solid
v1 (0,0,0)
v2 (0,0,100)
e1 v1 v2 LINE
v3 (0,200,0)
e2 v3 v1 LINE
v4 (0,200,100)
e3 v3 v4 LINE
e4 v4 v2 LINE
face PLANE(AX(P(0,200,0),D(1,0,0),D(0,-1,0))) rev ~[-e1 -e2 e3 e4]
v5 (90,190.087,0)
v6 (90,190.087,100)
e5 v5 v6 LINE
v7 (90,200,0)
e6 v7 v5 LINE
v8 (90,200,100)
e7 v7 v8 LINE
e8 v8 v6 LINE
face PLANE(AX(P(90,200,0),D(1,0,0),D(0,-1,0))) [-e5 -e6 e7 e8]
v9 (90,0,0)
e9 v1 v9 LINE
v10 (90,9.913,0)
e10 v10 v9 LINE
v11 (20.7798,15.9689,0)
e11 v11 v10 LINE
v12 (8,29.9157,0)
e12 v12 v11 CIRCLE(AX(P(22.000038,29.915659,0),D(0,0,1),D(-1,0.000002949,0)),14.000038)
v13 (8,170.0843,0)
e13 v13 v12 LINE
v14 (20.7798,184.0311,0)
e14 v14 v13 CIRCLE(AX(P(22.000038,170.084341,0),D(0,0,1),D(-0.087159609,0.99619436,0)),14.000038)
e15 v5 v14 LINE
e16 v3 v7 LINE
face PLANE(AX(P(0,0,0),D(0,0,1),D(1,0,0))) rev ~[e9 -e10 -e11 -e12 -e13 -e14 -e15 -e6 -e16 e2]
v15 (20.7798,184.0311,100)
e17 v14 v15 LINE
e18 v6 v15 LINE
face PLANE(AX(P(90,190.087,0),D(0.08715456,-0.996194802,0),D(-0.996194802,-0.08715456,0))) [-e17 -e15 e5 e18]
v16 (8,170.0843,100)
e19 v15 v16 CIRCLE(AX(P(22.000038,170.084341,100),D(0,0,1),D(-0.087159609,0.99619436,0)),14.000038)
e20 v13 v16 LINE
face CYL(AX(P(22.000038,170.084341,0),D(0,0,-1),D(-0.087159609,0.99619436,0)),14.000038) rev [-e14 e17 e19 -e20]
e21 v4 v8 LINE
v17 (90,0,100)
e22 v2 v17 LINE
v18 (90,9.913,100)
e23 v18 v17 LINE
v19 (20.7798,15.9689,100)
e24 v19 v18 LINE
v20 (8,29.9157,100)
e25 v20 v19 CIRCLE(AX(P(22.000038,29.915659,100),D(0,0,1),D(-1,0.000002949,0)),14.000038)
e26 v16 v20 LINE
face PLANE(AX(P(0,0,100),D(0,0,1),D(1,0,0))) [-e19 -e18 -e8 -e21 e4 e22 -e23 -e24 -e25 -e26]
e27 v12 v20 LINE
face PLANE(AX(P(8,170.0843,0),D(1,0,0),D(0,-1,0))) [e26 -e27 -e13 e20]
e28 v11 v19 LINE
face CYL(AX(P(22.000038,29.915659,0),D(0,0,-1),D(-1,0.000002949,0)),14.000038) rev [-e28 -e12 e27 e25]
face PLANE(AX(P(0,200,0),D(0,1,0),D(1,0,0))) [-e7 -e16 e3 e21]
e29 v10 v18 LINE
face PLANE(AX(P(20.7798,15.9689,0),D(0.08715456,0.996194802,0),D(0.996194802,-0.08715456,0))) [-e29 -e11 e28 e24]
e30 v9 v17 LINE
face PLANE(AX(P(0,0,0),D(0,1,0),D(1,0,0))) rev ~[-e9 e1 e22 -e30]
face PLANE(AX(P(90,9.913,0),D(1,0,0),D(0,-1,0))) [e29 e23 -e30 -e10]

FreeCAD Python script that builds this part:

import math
import FreeCAD as App
import Part
import Sketcher

V = App.Vector
Q = App.Units.Quantity

doc = App.newDocument("Part")
body = doc.addObject("PartDesign::Body", "Body")

# Sketch on XY plane
sketch1 = doc.addObject("Sketcher::SketchObject", "Sketch")
body.addObject(sketch1)
sketch1.AttachmentSupport = (doc.XY_Plane, [""])
sketch1.MapMode = "FlatFace"
sketch1.addGeometry(Part.ArcOfCircle(Part.Circle(V(22, 170, 0), V(0, 0, 1), 14), math.radians(95), math.radians(180)), False)
sketch1.addGeometry(Part.LineSegment(V(21, 184, 0), V(90, 190, 0)), False)
sketch1.addGeometry(Part.LineSegment(V(90, 190, 0), V(90, 200, 0)), False)
sketch1.addGeometry(Part.LineSegment(V(90, 200, 0), V(0, 200, 0)), False)
sketch1.addGeometry(Part.LineSegment(V(0, 200, 0), V(0, 0, 0)), False)
sketch1.addGeometry(Part.LineSegment(V(0, 0, 0), V(90, 0, 0)), False)
sketch1.addGeometry(Part.LineSegment(V(90, 0, 0), V(90, 10, 0)), False)
sketch1.addGeometry(Part.LineSegment(V(90, 10, 0), V(21, 16, 0)), False)
sketch1.addGeometry(Part.ArcOfCircle(Part.Circle(V(22, 30, 0), V(0, 0, 1), 14), math.radians(180), math.radians(265)), False)
sketch1.addGeometry(Part.LineSegment(V(8, 30, 0), V(8, 170, 0)), False)
sketch1.addConstraint(Sketcher.Constraint("Tangent", 0, 1, 1, 1))
sketch1.addConstraint(Sketcher.Constraint("Coincident", 1, 2, 2, 1))
sketch1.addConstraint(Sketcher.Constraint("Coincident", 2, 2, 3, 1))
sketch1.addConstraint(Sketcher.Constraint("Coincident", 3, 2, 4, 1))
sketch1.addConstraint(Sketcher.Constraint("Coincident", 4, 2, 5, 1))
sketch1.addConstraint(Sketcher.Constraint("Coincident", 5, 2, 6, 1))
sketch1.addConstraint(Sketcher.Constraint("Coincident", 6, 2, 7, 1))
sketch1.addConstraint(Sketcher.Constraint("Tangent", 7, 2, 8, 2))
sketch1.addConstraint(Sketcher.Constraint("Tangent", 8, 1, 9, 1))
sketch1.addConstraint(Sketcher.Constraint("Tangent", 9, 2, 0, 2))
sketch1.addConstraint(Sketcher.Constraint("Vertical", 2))
sketch1.addConstraint(Sketcher.Constraint("Horizontal", 3))
sketch1.addConstraint(Sketcher.Constraint("Vertical", 4))
sketch1.addConstraint(Sketcher.Constraint("Horizontal", 5))
sketch1.addConstraint(Sketcher.Constraint("Vertical", 6))
sketch1.addConstraint(Sketcher.Constraint("Vertical", 9))
sketch1.addConstraint(Sketcher.Constraint("Coincident", 4, 2, -1, 1))
sketch1.addConstraint(Sketcher.Constraint("Equal", 0, 8))
sketch1.addConstraint(Sketcher.Constraint("Vertical", 2, 2, 5, 2))
sketch1.addConstraint(Sketcher.Constraint("Vertical", 0, 1, 7, 2))
sketch1.addConstraint(Sketcher.Constraint("Equal", 2, 6))
sketch1.addConstraint(Sketcher.Constraint("Radius", 0, Q("14 mm")))
sketch1.addConstraint(Sketcher.Constraint("DistanceX", 3, 2, 3, 1, Q("90 mm")))
sketch1.addConstraint(Sketcher.Constraint("DistanceY", 4, 2, 4, 1, Q("200 mm")))
sketch1.addConstraint(Sketcher.Constraint("Angle", 1, Q("5 deg")))
sketch1.addConstraint(Sketcher.Constraint("DistanceX", -1, 1, 0, 3, Q("22 mm")))
sketch1.addConstraint(Sketcher.Constraint("DistanceY", 2, 1, 2, 2, Q("9.913 mm")))
pad1 = doc.addObject("PartDesign::Pad", "Pad")
body.addObject(pad1)
pad1.Profile = sketch1
pad1.Length = 100

doc.recompute()
